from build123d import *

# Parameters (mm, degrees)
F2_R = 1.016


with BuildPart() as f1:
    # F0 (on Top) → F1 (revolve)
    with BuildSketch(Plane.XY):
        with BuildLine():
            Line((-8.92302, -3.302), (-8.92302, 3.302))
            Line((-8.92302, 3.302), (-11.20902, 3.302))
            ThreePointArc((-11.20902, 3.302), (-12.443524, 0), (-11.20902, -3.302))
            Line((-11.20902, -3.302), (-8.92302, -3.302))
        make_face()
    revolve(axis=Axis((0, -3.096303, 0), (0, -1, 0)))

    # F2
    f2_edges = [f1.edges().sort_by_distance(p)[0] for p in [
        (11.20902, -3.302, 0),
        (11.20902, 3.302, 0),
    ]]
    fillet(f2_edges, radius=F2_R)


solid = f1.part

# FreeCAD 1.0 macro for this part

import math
import FreeCAD as App
import Part
import Sketcher
from FreeCAD import Vector
Q = App.Units.Quantity


def edges_at(feature, points):
    """Names of the edges that pass closest to the given points."""
    edges = feature.Shape.Edges
    near = lambda p: min(range(len(edges)), key=lambda i: edges[i].distToShape(Part.Vertex(*p))[0])
    return sorted({f"Edge{near(p) + 1}" for p in points})

doc = App.newDocument("Part")
params = doc.addObject("Spreadsheet::Sheet", "Params")
for row, (alias, value) in enumerate([
    ("sketch1_width", "0.09 in"),
    ("sketch1_height", "0.26 in"),
    ("revolution_angle", "360 deg"),
    ("fillet_radius", "0.04 in"),
], start=1):
    params.set(f"A{row}", alias)
    params.set(f"B{row}", "=" + value)
    params.setAlias(f"B{row}", alias)

body = doc.addObject("PartDesign::Body", "Body")

# Sketch on XY plane
sketch1 = body.newObject("Sketcher::SketchObject", "Sketch")
sketch1.AttachmentSupport = (doc.getObject("XY_Plane"), [""])
sketch1.MapMode = "FlatFace"
sketch1.addGeometry([
    Part.LineSegment(Vector(-8.9, -3.3, 0), Vector(-8.9, 3.3, 0)),
    Part.LineSegment(Vector(-8.9, 3.3, 0), Vector(-11.2, 3.3, 0)),
    Part.ArcOfCircle(Part.Circle(Vector(-7.4, 0, 0), Vector(0, 0, 1), 5), math.radians(139), math.radians(221)),
    Part.LineSegment(Vector(-11.2, -3.3, 0), Vector(-8.9, -3.3, 0)),
], False)
sketch1.addConstraint([
    Sketcher.Constraint("Coincident", 0, 2, 1, 1),
    Sketcher.Constraint("Coincident", 1, 2, 2, 1),
    Sketcher.Constraint("Coincident", 2, 2, 3, 1),
    Sketcher.Constraint("Coincident", 3, 2, 0, 1),
    Sketcher.Constraint("Vertical", 0),
    Sketcher.Constraint("Horizontal", 1),
    Sketcher.Constraint("Horizontal", 3),
    Sketcher.Constraint("Symmetric", 1, 2, 2, 2, -1),
    Sketcher.Constraint("DistanceX", 1, 2, 1, 1, Q("0.09 in")),
    Sketcher.Constraint("DistanceY", 0, 1, 0, 2, Q("0.26 in")),
    Sketcher.Constraint("Radius", 2, 5.033278),
    Sketcher.Constraint("DistanceX", 0, 2, -1, 1, Q("0.3513 in")),
])
sketch1.setExpression("Constraints[8]", "Params.sketch1_width")
sketch1.setExpression("Constraints[9]", "Params.sketch1_height")
revolution = body.newObject("PartDesign::Revolution", "Revolution")
revolution.Profile = sketch1
revolution.ReferenceAxis = (sketch1, ["V_Axis"])
revolution.setExpression("Angle", "Params.revolution_angle")
doc.recompute()

fillet = body.newObject("PartDesign::Fillet", "Fillet")
fillet.Base = (revolution, edges_at(revolution, [(11.209, -3.302, 0), (11.209, 3.302, 0)]))
fillet.setExpression("Radius", "Params.fillet_radius")

doc.recompute()
